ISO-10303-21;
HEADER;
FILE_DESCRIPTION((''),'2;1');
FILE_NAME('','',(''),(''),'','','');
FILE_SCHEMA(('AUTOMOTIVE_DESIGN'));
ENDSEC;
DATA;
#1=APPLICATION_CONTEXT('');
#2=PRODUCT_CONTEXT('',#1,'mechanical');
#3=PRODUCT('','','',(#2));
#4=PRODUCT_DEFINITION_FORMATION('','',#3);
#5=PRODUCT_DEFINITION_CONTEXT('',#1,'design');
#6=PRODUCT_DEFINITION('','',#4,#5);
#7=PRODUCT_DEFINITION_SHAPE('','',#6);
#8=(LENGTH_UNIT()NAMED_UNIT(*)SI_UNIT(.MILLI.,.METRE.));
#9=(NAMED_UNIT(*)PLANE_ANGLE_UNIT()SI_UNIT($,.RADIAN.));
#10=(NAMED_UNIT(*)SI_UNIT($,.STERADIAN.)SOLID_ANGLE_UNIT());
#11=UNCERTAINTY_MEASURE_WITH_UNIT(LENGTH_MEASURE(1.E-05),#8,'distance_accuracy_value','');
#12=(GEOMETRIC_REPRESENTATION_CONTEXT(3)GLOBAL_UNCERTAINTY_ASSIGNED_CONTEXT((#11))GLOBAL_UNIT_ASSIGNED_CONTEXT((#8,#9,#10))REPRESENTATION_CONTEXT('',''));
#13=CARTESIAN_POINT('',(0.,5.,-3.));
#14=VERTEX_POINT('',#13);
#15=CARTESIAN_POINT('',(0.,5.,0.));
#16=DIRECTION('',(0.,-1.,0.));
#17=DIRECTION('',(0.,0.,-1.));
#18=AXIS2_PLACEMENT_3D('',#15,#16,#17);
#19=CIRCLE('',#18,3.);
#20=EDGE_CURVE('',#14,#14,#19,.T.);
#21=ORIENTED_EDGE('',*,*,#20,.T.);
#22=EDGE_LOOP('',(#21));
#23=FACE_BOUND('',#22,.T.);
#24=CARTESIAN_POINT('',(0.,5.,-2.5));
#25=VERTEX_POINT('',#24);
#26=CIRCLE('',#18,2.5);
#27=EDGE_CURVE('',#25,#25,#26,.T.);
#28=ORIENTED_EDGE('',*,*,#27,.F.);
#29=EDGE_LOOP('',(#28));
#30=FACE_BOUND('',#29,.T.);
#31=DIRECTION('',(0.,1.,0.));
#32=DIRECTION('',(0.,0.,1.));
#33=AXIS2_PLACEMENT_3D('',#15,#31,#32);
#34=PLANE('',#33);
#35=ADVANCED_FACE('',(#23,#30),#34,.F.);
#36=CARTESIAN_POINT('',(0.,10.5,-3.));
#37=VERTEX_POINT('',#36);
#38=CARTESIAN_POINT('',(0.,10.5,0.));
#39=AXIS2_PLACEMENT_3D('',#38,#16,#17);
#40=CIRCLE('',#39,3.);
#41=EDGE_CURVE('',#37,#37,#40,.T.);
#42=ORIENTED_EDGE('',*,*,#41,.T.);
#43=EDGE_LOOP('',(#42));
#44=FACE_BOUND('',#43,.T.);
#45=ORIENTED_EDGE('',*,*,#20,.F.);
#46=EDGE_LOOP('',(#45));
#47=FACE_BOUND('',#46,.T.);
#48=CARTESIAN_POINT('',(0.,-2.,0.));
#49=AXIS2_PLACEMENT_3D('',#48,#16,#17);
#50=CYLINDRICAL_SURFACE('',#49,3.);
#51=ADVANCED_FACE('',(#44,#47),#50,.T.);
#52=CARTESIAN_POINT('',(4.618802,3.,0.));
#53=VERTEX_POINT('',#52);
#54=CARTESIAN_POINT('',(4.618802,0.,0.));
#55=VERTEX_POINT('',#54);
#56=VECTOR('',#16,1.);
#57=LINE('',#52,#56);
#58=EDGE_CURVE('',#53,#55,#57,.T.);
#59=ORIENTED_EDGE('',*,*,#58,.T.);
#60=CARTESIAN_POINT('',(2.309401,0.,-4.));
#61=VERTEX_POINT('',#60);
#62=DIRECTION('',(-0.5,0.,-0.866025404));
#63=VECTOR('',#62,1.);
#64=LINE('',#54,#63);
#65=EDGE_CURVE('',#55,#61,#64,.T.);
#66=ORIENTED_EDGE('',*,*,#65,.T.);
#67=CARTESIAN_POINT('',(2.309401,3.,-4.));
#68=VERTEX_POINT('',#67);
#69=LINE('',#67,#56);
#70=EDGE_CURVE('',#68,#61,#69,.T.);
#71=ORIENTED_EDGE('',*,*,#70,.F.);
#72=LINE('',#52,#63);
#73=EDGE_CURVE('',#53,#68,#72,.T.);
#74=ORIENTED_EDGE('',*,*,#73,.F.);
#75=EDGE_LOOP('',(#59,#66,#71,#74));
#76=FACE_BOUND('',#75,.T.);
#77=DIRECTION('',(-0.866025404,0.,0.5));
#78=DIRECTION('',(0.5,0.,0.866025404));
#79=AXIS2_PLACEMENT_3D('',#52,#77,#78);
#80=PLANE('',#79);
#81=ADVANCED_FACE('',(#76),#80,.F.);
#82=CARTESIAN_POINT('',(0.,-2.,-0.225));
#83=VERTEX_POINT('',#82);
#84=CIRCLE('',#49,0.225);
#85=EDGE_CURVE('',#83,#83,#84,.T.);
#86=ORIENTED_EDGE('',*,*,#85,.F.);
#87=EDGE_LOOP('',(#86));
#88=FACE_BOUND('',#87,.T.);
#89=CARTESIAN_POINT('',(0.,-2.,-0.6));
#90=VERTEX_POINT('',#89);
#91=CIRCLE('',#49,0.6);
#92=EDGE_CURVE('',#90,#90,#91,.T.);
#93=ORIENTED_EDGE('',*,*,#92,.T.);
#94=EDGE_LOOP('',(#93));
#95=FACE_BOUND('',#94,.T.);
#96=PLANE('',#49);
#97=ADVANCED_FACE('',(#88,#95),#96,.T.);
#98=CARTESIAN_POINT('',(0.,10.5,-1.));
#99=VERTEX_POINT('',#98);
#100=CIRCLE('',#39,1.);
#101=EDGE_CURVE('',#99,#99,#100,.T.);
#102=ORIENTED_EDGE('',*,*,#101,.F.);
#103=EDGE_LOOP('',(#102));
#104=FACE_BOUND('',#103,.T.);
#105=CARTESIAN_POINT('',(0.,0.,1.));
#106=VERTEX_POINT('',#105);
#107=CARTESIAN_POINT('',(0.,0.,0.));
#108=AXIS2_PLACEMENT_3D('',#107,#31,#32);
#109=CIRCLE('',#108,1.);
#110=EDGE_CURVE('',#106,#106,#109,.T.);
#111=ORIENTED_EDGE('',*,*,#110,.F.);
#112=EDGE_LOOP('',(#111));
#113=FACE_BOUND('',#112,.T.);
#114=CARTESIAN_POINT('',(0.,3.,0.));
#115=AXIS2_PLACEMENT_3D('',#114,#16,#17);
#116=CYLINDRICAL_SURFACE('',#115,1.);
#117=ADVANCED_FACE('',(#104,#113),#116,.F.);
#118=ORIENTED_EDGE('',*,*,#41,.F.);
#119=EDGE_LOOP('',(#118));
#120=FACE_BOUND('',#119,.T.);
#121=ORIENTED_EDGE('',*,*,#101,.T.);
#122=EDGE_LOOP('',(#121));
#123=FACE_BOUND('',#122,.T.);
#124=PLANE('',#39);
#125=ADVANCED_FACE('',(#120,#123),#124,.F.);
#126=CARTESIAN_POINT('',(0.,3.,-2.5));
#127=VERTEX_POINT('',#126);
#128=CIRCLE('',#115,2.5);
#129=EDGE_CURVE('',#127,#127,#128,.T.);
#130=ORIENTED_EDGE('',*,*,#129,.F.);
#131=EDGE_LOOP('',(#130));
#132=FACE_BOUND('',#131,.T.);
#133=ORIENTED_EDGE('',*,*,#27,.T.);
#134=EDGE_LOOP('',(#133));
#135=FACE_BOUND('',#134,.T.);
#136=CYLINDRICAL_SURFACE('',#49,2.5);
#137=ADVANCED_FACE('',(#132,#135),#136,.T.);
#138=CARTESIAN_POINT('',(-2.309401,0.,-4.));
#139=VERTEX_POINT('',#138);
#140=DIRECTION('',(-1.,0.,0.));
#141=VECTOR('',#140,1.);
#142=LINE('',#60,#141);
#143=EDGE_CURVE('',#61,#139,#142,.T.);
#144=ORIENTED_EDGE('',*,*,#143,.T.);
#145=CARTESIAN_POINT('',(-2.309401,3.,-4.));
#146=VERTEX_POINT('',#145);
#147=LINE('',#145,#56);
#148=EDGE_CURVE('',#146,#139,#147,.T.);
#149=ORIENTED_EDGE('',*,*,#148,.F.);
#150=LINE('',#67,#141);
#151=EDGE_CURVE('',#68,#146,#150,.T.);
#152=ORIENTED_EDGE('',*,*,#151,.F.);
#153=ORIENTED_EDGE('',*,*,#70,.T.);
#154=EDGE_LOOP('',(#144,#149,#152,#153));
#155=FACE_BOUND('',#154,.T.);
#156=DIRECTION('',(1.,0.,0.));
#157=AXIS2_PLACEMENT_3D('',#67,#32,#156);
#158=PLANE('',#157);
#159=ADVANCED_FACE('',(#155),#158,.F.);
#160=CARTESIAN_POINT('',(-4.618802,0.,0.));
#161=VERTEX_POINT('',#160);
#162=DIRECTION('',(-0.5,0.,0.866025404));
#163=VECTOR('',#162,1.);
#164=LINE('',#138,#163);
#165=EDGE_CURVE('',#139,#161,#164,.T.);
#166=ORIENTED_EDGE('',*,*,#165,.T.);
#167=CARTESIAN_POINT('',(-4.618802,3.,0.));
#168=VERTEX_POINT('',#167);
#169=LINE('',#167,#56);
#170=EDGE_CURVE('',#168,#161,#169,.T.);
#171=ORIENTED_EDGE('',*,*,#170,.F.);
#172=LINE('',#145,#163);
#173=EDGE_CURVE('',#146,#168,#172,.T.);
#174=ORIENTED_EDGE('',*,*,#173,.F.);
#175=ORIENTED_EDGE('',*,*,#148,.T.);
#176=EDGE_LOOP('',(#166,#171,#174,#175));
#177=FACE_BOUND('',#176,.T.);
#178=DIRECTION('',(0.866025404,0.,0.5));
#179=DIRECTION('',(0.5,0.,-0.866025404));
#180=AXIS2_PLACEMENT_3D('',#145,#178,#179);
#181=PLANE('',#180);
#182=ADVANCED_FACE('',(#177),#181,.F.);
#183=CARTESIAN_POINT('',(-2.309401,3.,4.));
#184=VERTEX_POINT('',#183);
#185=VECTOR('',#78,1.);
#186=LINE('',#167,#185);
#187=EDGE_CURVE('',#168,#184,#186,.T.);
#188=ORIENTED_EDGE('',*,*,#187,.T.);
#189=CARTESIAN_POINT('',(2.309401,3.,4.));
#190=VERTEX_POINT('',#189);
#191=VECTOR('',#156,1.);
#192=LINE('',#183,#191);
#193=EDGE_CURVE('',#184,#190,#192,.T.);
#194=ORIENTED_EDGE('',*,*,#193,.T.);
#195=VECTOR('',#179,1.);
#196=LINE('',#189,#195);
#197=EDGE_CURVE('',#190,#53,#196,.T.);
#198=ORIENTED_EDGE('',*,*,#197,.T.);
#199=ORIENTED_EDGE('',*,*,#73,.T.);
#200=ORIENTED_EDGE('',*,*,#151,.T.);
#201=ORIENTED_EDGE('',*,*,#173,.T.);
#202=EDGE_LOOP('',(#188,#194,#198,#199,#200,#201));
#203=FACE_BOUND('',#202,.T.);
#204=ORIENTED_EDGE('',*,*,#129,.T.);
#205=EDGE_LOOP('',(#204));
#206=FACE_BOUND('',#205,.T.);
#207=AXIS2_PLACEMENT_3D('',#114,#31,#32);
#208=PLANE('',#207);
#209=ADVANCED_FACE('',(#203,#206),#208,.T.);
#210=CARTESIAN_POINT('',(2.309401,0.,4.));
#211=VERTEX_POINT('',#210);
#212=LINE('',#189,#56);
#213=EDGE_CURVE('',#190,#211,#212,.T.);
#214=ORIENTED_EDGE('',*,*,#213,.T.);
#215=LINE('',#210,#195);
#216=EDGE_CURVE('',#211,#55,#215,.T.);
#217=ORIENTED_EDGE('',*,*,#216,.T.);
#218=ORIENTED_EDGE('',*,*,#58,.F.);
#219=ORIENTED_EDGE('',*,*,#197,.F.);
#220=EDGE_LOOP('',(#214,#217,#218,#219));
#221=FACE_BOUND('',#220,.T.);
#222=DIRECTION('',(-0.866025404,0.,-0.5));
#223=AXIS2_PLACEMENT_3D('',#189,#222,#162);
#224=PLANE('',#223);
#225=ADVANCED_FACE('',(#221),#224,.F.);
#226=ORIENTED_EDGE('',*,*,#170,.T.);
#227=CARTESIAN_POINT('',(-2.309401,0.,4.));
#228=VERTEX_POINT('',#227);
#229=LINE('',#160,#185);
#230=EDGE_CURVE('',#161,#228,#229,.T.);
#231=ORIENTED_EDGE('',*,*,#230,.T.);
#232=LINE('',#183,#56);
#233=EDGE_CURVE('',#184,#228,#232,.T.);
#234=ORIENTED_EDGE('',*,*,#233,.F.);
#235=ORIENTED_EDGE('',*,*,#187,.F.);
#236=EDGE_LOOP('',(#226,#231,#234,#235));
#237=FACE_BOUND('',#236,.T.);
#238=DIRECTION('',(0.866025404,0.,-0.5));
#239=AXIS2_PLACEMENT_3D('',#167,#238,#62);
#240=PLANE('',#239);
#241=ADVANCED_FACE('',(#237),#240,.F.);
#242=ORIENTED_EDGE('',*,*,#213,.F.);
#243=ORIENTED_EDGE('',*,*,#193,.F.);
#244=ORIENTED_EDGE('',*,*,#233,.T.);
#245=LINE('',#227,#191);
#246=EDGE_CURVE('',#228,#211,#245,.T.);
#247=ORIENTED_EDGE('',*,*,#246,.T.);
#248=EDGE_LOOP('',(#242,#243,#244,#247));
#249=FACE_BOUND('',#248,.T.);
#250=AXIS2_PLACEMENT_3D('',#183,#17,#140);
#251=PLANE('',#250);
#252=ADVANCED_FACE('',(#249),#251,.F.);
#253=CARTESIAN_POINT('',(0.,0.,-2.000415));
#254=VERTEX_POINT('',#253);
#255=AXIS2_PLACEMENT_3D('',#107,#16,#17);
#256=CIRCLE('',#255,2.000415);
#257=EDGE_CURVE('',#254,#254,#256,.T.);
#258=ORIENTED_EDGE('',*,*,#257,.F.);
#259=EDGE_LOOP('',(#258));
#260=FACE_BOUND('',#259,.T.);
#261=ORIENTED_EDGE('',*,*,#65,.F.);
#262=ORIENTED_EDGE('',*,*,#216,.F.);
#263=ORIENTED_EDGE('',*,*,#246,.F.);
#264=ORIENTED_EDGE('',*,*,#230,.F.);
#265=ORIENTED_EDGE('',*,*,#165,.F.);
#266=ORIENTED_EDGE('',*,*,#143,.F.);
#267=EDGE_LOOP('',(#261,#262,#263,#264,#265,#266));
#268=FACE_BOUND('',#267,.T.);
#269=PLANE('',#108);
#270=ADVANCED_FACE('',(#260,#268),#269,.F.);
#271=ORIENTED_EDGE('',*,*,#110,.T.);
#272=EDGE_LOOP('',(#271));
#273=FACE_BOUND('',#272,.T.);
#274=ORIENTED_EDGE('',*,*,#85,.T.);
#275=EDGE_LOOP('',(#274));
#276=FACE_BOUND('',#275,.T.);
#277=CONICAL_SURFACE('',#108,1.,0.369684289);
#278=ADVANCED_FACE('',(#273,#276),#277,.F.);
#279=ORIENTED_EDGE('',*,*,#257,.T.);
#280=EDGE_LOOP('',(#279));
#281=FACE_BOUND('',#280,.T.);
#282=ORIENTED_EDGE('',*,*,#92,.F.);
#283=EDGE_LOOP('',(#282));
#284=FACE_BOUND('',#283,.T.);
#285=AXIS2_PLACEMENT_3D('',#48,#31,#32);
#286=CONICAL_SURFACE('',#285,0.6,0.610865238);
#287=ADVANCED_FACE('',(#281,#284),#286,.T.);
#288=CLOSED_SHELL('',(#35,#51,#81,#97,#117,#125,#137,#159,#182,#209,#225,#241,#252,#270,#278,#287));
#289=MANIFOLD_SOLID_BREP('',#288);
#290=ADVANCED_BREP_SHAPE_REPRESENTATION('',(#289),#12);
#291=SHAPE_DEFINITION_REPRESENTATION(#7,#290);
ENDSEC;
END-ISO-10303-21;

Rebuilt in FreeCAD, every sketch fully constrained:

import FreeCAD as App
import Part
import Sketcher

V = App.Vector
Q = App.Units.Quantity


def add_polygon(sketch, points):
    """Adds a closed chain of lines whose ends are joined by coincident constraints."""
    first, n = sketch.GeometryCount, len(points)
    for a, b in zip(points, points[1:] + points[:1]):
        sketch.addGeometry(Part.LineSegment(App.Vector(*a, 0), App.Vector(*b, 0)), False)
    for i in range(n):
        sketch.addConstraint(Sketcher.Constraint("Coincident", first + i, 2, first + (i + 1) % n, 1))

doc = App.newDocument("Part")
params = doc.addObject("Spreadsheet::Sheet", "Params")
for row, (alias, value) in enumerate([
    ("sketch1_diameter", "2 mm"),
    ("pad1_length", "3 mm"),
    ("sketch2_width", "2 mm"),
    ("sketch2_width2", "1.5 mm"),
    ("sketch2_height", "5.5 mm"),
    ("revolution_angle", "360 deg"),
], start=1):
    params.set(f"A{row}", alias)
    params.set(f"B{row}", "=" + value)
    params.setAlias(f"B{row}", alias)

body = doc.addObject("PartDesign::Body", "Body")

# Sketch on XZ plane
sketch1 = body.newObject("Sketcher::SketchObject", "Sketch")
sketch1.AttachmentSupport = (doc.getObject("XZ_Plane"), [""])
sketch1.MapMode = "FlatFace"
add_polygon(sketch1, [(2.3, -4), (-2.3, -4), (-4.6, 0), (-2.3, 4), (2.3, 4), (4.6, 0)])  # lines 0-5
sketch1.addGeometry(Part.Circle(V(0, 0, 0), V(0, 0, 1), 1), False)  # 6
sketch1.addConstraint([
    Sketcher.Constraint("Horizontal", 0),
    Sketcher.Constraint("Horizontal", 3),
    Sketcher.Constraint("Coincident", 6, 3, -1, 1),
    Sketcher.Constraint("Symmetric", 0, 2, 3, 2, -1, 1),
    Sketcher.Constraint("Symmetric", 1, 2, 4, 2, -1, 1),
    Sketcher.Constraint("PointOnObject", 1, 2, -1),
    Sketcher.Constraint("Parallel", 2, 5),
    Sketcher.Constraint("Vertical", 0, 2, 2, 2),
    Sketcher.Constraint("Diameter", 6, 2.0),
    Sketcher.Constraint("Angle", 1, Q("120 deg")),
    Sketcher.Constraint("DistanceY", 0, 2, -1, 1, 4.0),
    Sketcher.Constraint("DistanceX", 0, 2, -1, 1, 2.309401),
])
sketch1.setExpression("Constraints[14]", "Params.sketch1_diameter")
pad1 = body.newObject("PartDesign::Pad", "Pad")
pad1.Profile = sketch1
pad1.setExpression("Length", "Params.pad1_length")
pad1.Reversed = True

# Sketch on XY plane
sketch2 = body.newObject("Sketcher::SketchObject", "Sketch001")
sketch2.AttachmentSupport = (doc.getObject("XY_Plane"), [""])
sketch2.MapMode = "FlatFace"
add_polygon(sketch2, [(1, 3), (2.5, 3), (2.5, 5), (3, 5), (3, 10.5), (1, 10.5)])  # lines 0-5
add_polygon(sketch2, [(2, 0), (1, 0), (0.23, -2), (0.6, -2)])  # lines 6-9
sketch2.addConstraint([
    Sketcher.Constraint("Horizontal", 0),
    Sketcher.Constraint("Vertical", 1),
    Sketcher.Constraint("Horizontal", 2),
    Sketcher.Constraint("Vertical", 3),
    Sketcher.Constraint("Horizontal", 4),
    Sketcher.Constraint("Vertical", 5),
    Sketcher.Constraint("Horizontal", 6),
    Sketcher.Constraint("Horizontal", 8),
    Sketcher.Constraint("PointOnObject", 6, 2, -1),
    Sketcher.Constraint("Vertical", 5, 2, 6, 2),
    Sketcher.Constraint("Equal", 4, 1),
    Sketcher.Constraint("DistanceX", 4, 2, 4, 1, 2.0),
    Sketcher.Constraint("Angle", 9, Q("55 deg")),
    Sketcher.Constraint("DistanceX", 0, 1, 0, 2, 1.5),
    Sketcher.Constraint("DistanceY", 3, 1, 3, 2, 5.5),
    Sketcher.Constraint("DistanceY", -1, 1, 0, 2, 3.0),
    Sketcher.Constraint("DistanceX", -1, 1, 2, 2, 3.0),
    Sketcher.Constraint("DistanceY", 7, 2, -1, 1, 2.0),
    Sketcher.Constraint("DistanceX", -1, 1, 8, 2, 0.6),
    Sketcher.Constraint("DistanceX", 8, 1, 8, 2, 0.375),
])
sketch2.setExpression("Constraints[21]", "Params.sketch2_width")
sketch2.setExpression("Constraints[23]", "Params.sketch2_width2")
sketch2.setExpression("Constraints[24]", "Params.sketch2_height")
revolution = body.newObject("PartDesign::Revolution", "Revolution")
revolution.Profile = sketch2
revolution.ReferenceAxis = (sketch2, ["V_Axis"])
revolution.setExpression("Angle", "Params.revolution_angle")

doc.recompute()
